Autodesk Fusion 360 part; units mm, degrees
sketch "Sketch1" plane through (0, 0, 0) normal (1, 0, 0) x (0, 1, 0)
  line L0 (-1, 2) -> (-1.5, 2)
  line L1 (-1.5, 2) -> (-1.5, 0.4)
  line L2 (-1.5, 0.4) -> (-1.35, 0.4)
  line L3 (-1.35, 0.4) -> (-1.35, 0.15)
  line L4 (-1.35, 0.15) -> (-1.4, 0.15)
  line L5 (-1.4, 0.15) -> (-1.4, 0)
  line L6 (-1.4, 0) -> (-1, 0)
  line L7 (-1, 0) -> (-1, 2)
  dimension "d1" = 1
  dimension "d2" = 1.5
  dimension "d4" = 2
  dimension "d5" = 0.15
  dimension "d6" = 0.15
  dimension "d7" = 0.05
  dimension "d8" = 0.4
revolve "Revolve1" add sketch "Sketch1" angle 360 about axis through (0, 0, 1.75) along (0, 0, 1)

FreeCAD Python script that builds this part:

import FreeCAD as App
import Part
import Sketcher
from FreeCAD import Vector
Q = App.Units.Quantity


def add_polygon(sketch, points):
    """Adds a closed chain of lines whose ends are joined by coincident constraints."""
    first, n = sketch.GeometryCount, len(points)
    for a, b in zip(points, points[1:] + points[:1]):
        sketch.addGeometry(Part.LineSegment(App.Vector(*a, 0), App.Vector(*b, 0)), False)
    for i in range(n):
        sketch.addConstraint(Sketcher.Constraint("Coincident", first + i, 2, first + (i + 1) % n, 1))

doc = App.newDocument("Part")
body = doc.addObject("PartDesign::Body", "Body")

# Sketch on YZ plane
sketch1 = body.newObject("Sketcher::SketchObject", "Sketch")
sketch1.AttachmentSupport = (doc.getObject("YZ_Plane"), [""])
sketch1.MapMode = "FlatFace"
add_polygon(sketch1, [(-1, 0), (-1, 2), (-1.5, 2), (-1.5, 0.4), (-1.35, 0.4), (-1.35, 0.15), (-1.4, 0.15), (-1.4, 0)])  # lines 0-7
sketch1.addConstraint([
    Sketcher.Constraint("Vertical", 0),
    Sketcher.Constraint("Horizontal", 1),
    Sketcher.Constraint("Vertical", 2),
    Sketcher.Constraint("Horizontal", 3),
    Sketcher.Constraint("Vertical", 4),
    Sketcher.Constraint("Horizontal", 5),
    Sketcher.Constraint("Vertical", 6),
    Sketcher.Constraint("Horizontal", 7),
    Sketcher.Constraint("PointOnObject", 6, 2, -1),
    Sketcher.Constraint("Equal", 3, 6),
    Sketcher.Constraint("DistanceY", 0, 1, 0, 2, Q("2 mm")),
    Sketcher.Constraint("DistanceX", 7, 1, 7, 2, Q("0.4 mm")),
    Sketcher.Constraint("DistanceX", 0, 2, -1, 1, Q("1 mm")),
    Sketcher.Constraint("DistanceX", 3, 1, 3, 2, Q("0.15 mm")),
    Sketcher.Constraint("DistanceX", 5, 2, 5, 1, Q("0.05 mm")),
    Sketcher.Constraint("DistanceY", -1, 1, 2, 2, Q("0.4 mm")),
])
revolution = body.newObject("PartDesign::Revolution", "Revolution")
revolution.Profile = sketch1
revolution.ReferenceAxis = (sketch1, ["V_Axis"])
revolution.Angle = 360

doc.recompute()
